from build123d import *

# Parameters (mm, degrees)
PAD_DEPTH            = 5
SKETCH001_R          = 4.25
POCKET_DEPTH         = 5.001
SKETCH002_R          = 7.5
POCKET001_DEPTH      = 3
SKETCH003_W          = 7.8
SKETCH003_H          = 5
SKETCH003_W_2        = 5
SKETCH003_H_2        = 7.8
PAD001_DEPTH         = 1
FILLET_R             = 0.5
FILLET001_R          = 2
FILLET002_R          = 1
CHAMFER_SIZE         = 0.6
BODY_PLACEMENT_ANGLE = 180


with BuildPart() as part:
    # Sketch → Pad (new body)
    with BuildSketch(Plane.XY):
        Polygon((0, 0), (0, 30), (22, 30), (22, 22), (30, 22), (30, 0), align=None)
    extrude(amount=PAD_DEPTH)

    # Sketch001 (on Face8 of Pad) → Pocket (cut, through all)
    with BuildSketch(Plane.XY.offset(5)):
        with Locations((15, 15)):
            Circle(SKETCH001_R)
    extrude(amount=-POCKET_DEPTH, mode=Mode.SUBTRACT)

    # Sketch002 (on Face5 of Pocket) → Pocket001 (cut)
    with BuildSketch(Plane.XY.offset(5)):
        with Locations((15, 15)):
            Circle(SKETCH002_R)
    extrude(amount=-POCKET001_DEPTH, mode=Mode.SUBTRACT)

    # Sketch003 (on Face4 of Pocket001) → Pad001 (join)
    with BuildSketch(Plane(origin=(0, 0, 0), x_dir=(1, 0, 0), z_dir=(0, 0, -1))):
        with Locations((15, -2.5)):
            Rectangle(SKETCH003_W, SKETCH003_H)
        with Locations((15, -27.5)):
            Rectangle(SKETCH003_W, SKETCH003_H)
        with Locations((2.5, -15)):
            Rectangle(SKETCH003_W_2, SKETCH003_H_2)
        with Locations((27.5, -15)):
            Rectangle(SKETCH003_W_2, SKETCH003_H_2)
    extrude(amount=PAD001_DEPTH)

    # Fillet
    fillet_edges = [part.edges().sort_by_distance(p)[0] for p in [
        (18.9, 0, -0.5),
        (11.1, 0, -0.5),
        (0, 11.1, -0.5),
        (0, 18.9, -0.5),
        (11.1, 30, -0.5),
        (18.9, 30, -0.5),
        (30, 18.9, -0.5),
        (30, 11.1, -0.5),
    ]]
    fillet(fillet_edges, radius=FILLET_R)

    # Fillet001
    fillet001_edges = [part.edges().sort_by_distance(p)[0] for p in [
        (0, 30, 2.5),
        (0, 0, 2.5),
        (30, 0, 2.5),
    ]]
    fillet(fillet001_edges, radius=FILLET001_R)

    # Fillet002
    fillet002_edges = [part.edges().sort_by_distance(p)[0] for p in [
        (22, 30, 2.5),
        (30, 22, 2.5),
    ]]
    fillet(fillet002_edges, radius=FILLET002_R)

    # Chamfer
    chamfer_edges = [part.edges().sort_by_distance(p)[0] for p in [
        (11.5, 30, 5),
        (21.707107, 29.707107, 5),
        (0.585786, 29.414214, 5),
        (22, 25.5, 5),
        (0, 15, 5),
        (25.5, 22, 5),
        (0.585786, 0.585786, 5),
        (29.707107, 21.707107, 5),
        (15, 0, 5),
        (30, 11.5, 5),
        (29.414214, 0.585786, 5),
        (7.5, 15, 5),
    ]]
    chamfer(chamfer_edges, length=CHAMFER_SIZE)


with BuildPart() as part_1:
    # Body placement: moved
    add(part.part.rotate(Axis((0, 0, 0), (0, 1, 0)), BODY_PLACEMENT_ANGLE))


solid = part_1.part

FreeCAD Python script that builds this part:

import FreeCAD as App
import Part
import Sketcher
Q = App.Units.Quantity


def edges_at(feature, points):
    """Names of the edges that pass closest to the given points."""
    edges = feature.Shape.Edges
    near = lambda p: min(range(len(edges)), key=lambda i: edges[i].distToShape(Part.Vertex(*p))[0])
    return sorted({f"Edge{near(p) + 1}" for p in points})


def add_polygon(sketch, points):
    """Adds a closed chain of lines whose ends are joined by coincident constraints."""
    first, n = sketch.GeometryCount, len(points)
    for a, b in zip(points, points[1:] + points[:1]):
        sketch.addGeometry(Part.LineSegment(App.Vector(*a, 0), App.Vector(*b, 0)), False)
    for i in range(n):
        sketch.addConstraint(Sketcher.Constraint("Coincident", first + i, 2, first + (i + 1) % n, 1))

doc = App.newDocument("Part")
body = doc.addObject("PartDesign::Body", "Body")

sketch1 = body.newObject("Sketcher::SketchObject", "Sketch")
sketch1.AttachmentSupport = (doc.getObject("XY_Plane"), [""])
sketch1.MapMode = "FlatFace"
add_polygon(sketch1, [(0, 30), (0, 0), (30, 0), (30, 22), (22, 22), (22, 30)])
sketch1.addConstraint(Sketcher.Constraint("Vertical", 0))
sketch1.addConstraint(Sketcher.Constraint("Horizontal", 1))
sketch1.addConstraint(Sketcher.Constraint("Vertical", 2))
sketch1.addConstraint(Sketcher.Constraint("Horizontal", 3))
sketch1.addConstraint(Sketcher.Constraint("Vertical", 4))
sketch1.addConstraint(Sketcher.Constraint("Horizontal", 5))
sketch1.addConstraint(Sketcher.Constraint("Coincident", 0, 2, -1, 1))
sketch1.addConstraint(Sketcher.Constraint("Equal", 1, 0))
sketch1.addConstraint(Sketcher.Constraint("Equal", 5, 2))
sketch1.addConstraint(Sketcher.Constraint("DistanceX", 1, 1, 1, 2, Q("30 mm")))
sketch1.addConstraint(Sketcher.Constraint("DistanceX", 3, 2, 3, 1, Q("8 mm")))
pad1 = body.newObject("PartDesign::Pad", "Pad")
pad1.Profile = sketch1
pad1.Length = 5

sketch2 = body.newObject("Sketcher::SketchObject", "Sketch001")
sketch2.AttachmentSupport = (doc.getObject("XY_Plane"), [""])
sketch2.MapMode = "FlatFace"
sketch2.AttachmentOffset = App.Placement(App.Vector(0, 0, 5), App.Rotation())
sketch2.addGeometry(Part.Circle(App.Vector(15, 15, 0), App.Vector(0, 0, 1), 4.2), False)
sketch2.addConstraint(Sketcher.Constraint("Diameter", 0, Q("8.5 mm")))
sketch2.addConstraint(Sketcher.Constraint("DistanceX", -1, 1, 0, 3, Q("15 mm")))
sketch2.addConstraint(Sketcher.Constraint("DistanceY", -1, 1, 0, 3, Q("15 mm")))
pocket1 = body.newObject("PartDesign::Pocket", "Pocket")
pocket1.Profile = sketch2
pocket1.Type = "ThroughAll"

sketch3 = body.newObject("Sketcher::SketchObject", "Sketch002")
sketch3.AttachmentSupport = (doc.getObject("XY_Plane"), [""])
sketch3.MapMode = "FlatFace"
sketch3.AttachmentOffset = App.Placement(App.Vector(0, 0, 5), App.Rotation())
sketch3.addGeometry(Part.Circle(App.Vector(15, 15, 0), App.Vector(0, 0, 1), 8), False)
sketch3.addConstraint(Sketcher.Constraint("Diameter", 0, Q("15 mm")))
sketch3.addConstraint(Sketcher.Constraint("DistanceX", -1, 1, 0, 3, Q("15 mm")))
sketch3.addConstraint(Sketcher.Constraint("DistanceY", -1, 1, 0, 3, Q("15 mm")))
pocket2 = body.newObject("PartDesign::Pocket", "Pocket001")
pocket2.Profile = sketch3
pocket2.Length = 3

sketch4 = body.newObject("Sketcher::SketchObject", "Sketch003")
sketch4.AttachmentSupport = (doc.getObject("XY_Plane"), [""])
sketch4.MapMode = "FlatFace"
add_polygon(sketch4, [(11, 0), (11, 5), (19, 5), (19, 0)])
add_polygon(sketch4, [(11, 25), (11, 30), (19, 30), (19, 25)])
add_polygon(sketch4, [(0, 11), (0, 19), (5, 19), (5, 11)])
add_polygon(sketch4, [(25, 11), (25, 19), (30, 19), (30, 11)])
sketch4.addConstraint(Sketcher.Constraint("Vertical", 0))
sketch4.addConstraint(Sketcher.Constraint("Horizontal", 1))
sketch4.addConstraint(Sketcher.Constraint("Vertical", 2))
sketch4.addConstraint(Sketcher.Constraint("Horizontal", 3))
sketch4.addConstraint(Sketcher.Constraint("Vertical", 4))
sketch4.addConstraint(Sketcher.Constraint("Horizontal", 5))
sketch4.addConstraint(Sketcher.Constraint("Vertical", 6))
sketch4.addConstraint(Sketcher.Constraint("Horizontal", 7))
sketch4.addConstraint(Sketcher.Constraint("Vertical", 8))
sketch4.addConstraint(Sketcher.Constraint("Horizontal", 9))
sketch4.addConstraint(Sketcher.Constraint("Vertical", 10))
sketch4.addConstraint(Sketcher.Constraint("Horizontal", 11))
sketch4.addConstraint(Sketcher.Constraint("Vertical", 12))
sketch4.addConstraint(Sketcher.Constraint("Horizontal", 13))
sketch4.addConstraint(Sketcher.Constraint("Vertical", 14))
sketch4.addConstraint(Sketcher.Constraint("Horizontal", 15))
sketch4.addConstraint(Sketcher.Constraint("PointOnObject", 2, 2, -1))
sketch4.addConstraint(Sketcher.Constraint("PointOnObject", 8, 2, -2))
sketch4.addConstraint(Sketcher.Constraint("Horizontal", 9, 2, 12, 2))
sketch4.addConstraint(Sketcher.Constraint("Horizontal", 11, 2, 14, 2))
sketch4.addConstraint(Sketcher.Constraint("Vertical", 3, 2, 4, 2))
sketch4.addConstraint(Sketcher.Constraint("Vertical", 2, 2, 5, 2))
sketch4.addConstraint(Sketcher.Constraint("Equal", 11, 13))
sketch4.addConstraint(Sketcher.Constraint("Equal", 15, 0))
sketch4.addConstraint(Sketcher.Constraint("Equal", 2, 4))
sketch4.addConstraint(Sketcher.Constraint("Equal", 7, 8))
sketch4.addConstraint(Sketcher.Constraint("DistanceX", 9, 1, 9, 2, Q("5 mm")))
sketch4.addConstraint(Sketcher.Constraint("DistanceX", 1, 1, 1, 2, Q("7.8 mm")))
sketch4.addConstraint(Sketcher.Constraint("DistanceY", -1, 1, 4, 2, Q("30 mm")))
sketch4.addConstraint(Sketcher.Constraint("DistanceX", -1, 1, 12, 2, Q("25 mm")))
sketch4.addConstraint(Sketcher.Constraint("DistanceX", -1, 1, 0, 2, Q("11.1 mm")))
sketch4.addConstraint(Sketcher.Constraint("DistanceY", -1, 1, 8, 2, Q("18.9 mm")))
pad2 = body.newObject("PartDesign::Pad", "Pad001")
pad2.Profile = sketch4
pad2.Length = 1
pad2.Reversed = True
doc.recompute()

fillet = body.newObject("PartDesign::Fillet", "Fillet")
fillet.Base = (pad2, edges_at(pad2, [
    (18.9, 0, -0.5),
    (11.1, 0, -0.5),
    (0, 11.1, -0.5),
    (0, 18.9, -0.5),
    (11.1, 30, -0.5),
    (18.9, 30, -0.5),
    (30, 18.9, -0.5),
    (30, 11.1, -0.5),
]))
fillet.Radius = 0.5
doc.recompute()

fillet2 = body.newObject("PartDesign::Fillet", "Fillet001")
fillet2.Base = (fillet, edges_at(fillet, [(0, 30, 2.5), (0, 0, 2.5), (30, 0, 2.5)]))
fillet2.Radius = 2
doc.recompute()

fillet3 = body.newObject("PartDesign::Fillet", "Fillet002")
fillet3.Base = (fillet2, edges_at(fillet2, [(22, 30, 2.5), (30, 22, 2.5)]))
fillet3.Radius = 1
doc.recompute()

chamfer = body.newObject("PartDesign::Chamfer", "Chamfer")
chamfer.Base = (fillet3, edges_at(fillet3, [
    (11.5, 30, 5),
    (21.707, 29.707, 5),
    (0.586, 29.414, 5),
    (22, 25.5, 5),
    (0, 15, 5),
    (25.5, 22, 5),
    (0.586, 0.586, 5),
    (29.707, 21.707, 5),
    (15, 0, 5),
    (30, 11.5, 5),
    (29.414, 0.586, 5),
    (7.5, 15, 5),
]))
chamfer.Size = 0.6
body2 = doc.addObject("PartDesign::Body", "Body001")
doc.recompute()

body.Placement = App.Placement(App.Vector(0, 0, 0), App.Rotation(App.Vector(0, 1, 0), 180))
boolean = body2.newObject("PartDesign::Boolean", "Boolean")
boolean.Type = "Fuse"
boolean.addObjects([body])

doc.recompute()
